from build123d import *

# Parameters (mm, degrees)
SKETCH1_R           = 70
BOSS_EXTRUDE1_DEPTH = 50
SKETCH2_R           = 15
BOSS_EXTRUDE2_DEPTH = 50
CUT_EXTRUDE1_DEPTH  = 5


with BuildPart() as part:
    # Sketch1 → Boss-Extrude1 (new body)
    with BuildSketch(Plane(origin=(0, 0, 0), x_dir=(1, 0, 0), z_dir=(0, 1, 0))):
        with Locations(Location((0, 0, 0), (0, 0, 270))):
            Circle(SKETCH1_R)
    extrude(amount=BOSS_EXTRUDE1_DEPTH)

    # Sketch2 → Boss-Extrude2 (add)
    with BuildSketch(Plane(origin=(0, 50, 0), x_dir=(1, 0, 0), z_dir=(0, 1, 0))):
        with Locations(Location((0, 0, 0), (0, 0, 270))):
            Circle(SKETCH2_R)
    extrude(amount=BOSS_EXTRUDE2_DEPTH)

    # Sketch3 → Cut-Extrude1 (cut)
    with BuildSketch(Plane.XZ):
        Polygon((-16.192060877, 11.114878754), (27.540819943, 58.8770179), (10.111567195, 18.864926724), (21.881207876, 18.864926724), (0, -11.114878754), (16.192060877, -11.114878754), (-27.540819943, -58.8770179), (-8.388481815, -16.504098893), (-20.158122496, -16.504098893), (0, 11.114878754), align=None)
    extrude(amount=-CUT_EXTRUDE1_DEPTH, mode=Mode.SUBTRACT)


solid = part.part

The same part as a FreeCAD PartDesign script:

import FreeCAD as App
import Part
import Sketcher
Q = App.Units.Quantity


def add_polygon(sketch, points):
    """Adds a closed chain of lines whose ends are joined by coincident constraints."""
    first, n = sketch.GeometryCount, len(points)
    for a, b in zip(points, points[1:] + points[:1]):
        sketch.addGeometry(Part.LineSegment(App.Vector(*a, 0), App.Vector(*b, 0)), False)
    for i in range(n):
        sketch.addConstraint(Sketcher.Constraint("Coincident", first + i, 2, first + (i + 1) % n, 1))

doc = App.newDocument("Part")
body = doc.addObject("PartDesign::Body", "Body")

sketch1 = body.newObject("Sketcher::SketchObject", "Sketch")
sketch1.AttachmentSupport = (doc.getObject("XZ_Plane"), [""])
sketch1.MapMode = "FlatFace"
sketch1.addGeometry(Part.Circle(App.Vector(0, 0, 0), App.Vector(0, 0, 1), 70), False)
sketch1.addConstraint([
    Sketcher.Constraint("Coincident", 0, 3, -1, 1),
    Sketcher.Constraint("Diameter", 0, Q("140 mm")),
])
pad1 = body.newObject("PartDesign::Pad", "Pad")
pad1.Profile = sketch1
pad1.Length = 50
pad1.Reversed = True

sketch2 = body.newObject("Sketcher::SketchObject", "Sketch001")
sketch2.AttachmentSupport = (doc.getObject("XZ_Plane"), [""])
sketch2.MapMode = "FlatFace"
sketch2.AttachmentOffset = App.Placement(App.Vector(0, 0, -50), App.Rotation())
sketch2.addGeometry(Part.Circle(App.Vector(0, 0, 0), App.Vector(0, 0, 1), 15), False)
sketch2.addConstraint([
    Sketcher.Constraint("Coincident", 0, 3, -1, 1),
    Sketcher.Constraint("Diameter", 0, Q("30 mm")),
])
pad2 = body.newObject("PartDesign::Pad", "Pad001")
pad2.Profile = sketch2
pad2.Length = 50
pad2.Reversed = True

sketch3 = body.newObject("Sketcher::SketchObject", "Sketch002")
sketch3.AttachmentSupport = (doc.getObject("XZ_Plane"), [""])
sketch3.MapMode = "FlatFace"
add_polygon(sketch3, [(28, 59), (-16, 11), (0, 11), (-20, -17), (-8, -17), (-28, -59), (16, -11), (0, -11), (22, 19), (10, 19)])
sketch3.addConstraint([
    Sketcher.Constraint("Horizontal", 1),
    Sketcher.Constraint("Horizontal", 3),
    Sketcher.Constraint("Horizontal", 6),
    Sketcher.Constraint("Horizontal", 8),
    Sketcher.Constraint("Symmetric", 0, 2, 5, 2, -1, 1),
    Sketcher.Constraint("Symmetric", 4, 2, 9, 2, -1, 1),
    Sketcher.Constraint("PointOnObject", 1, 2, -2),
    Sketcher.Constraint("PointOnObject", 6, 2, -2),
    Sketcher.Constraint("Parallel", 2, 7),
    Sketcher.Constraint("Equal", 3, 8),
    Sketcher.Constraint("Distance", 9, Q("43.643399 mm")),
    Sketcher.Constraint("DistanceX", 1, 1, 1, 2, Q("16.192061 mm")),
    Sketcher.Constraint("DistanceX", 3, 1, 3, 2, Q("11.769641 mm")),
    Sketcher.Constraint("DistanceY", 2, 2, -1, 1, Q("16.504099 mm")),
    Sketcher.Constraint("Distance", 2, Q("34.19295 mm")),
    Sketcher.Constraint("Distance", 7, Q("37.115711 mm")),
    Sketcher.Constraint("DistanceY", -1, 1, 0, 2, Q("11.114879 mm")),
    Sketcher.Constraint("DistanceX", 4, 2, -1, 1, Q("27.54082 mm")),
])
pocket1 = body.newObject("PartDesign::Pocket", "Pocket")
pocket1.Profile = sketch3
pocket1.Length = 5

doc.recompute()
